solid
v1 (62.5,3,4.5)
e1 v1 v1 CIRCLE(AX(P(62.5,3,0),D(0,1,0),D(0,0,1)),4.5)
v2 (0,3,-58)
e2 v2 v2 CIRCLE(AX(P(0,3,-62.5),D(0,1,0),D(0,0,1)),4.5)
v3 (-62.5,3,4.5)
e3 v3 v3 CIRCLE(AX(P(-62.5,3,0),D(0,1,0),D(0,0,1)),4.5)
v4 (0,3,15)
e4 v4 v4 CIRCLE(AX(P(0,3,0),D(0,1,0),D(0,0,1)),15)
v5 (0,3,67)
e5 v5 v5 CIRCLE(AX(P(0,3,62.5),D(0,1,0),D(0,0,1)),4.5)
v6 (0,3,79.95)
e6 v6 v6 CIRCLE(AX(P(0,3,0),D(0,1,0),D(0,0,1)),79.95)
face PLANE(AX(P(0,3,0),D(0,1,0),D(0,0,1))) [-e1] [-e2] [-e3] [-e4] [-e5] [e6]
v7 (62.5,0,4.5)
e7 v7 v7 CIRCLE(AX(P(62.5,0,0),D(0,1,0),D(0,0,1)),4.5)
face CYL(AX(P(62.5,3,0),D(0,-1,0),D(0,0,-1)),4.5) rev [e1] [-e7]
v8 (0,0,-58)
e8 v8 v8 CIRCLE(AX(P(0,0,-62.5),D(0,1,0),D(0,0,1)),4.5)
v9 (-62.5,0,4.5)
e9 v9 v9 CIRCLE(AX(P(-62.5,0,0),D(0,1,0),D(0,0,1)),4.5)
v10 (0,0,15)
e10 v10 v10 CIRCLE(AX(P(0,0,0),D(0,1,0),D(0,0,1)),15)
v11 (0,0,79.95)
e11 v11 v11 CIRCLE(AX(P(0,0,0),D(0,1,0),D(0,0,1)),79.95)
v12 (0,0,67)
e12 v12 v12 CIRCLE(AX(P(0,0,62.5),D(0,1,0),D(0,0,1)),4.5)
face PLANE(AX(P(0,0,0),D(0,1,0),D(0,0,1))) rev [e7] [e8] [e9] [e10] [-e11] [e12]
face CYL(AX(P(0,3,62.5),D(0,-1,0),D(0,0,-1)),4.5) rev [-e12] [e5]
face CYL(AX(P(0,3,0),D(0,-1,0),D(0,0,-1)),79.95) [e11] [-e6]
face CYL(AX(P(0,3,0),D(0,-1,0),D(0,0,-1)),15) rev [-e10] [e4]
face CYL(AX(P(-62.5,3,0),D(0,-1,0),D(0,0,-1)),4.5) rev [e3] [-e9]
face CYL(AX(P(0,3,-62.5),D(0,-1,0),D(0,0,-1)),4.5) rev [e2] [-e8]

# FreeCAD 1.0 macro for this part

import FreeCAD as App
import Part
import Sketcher
from FreeCAD import Vector
Q = App.Units.Quantity

doc = App.newDocument("Part")
body = doc.addObject("PartDesign::Body", "Body")

# Sketch on XZ plane
sketch1 = doc.addObject("Sketcher::SketchObject", "Sketch")
body.addObject(sketch1)
sketch1.AttachmentSupport = (doc.XZ_Plane, [""])
sketch1.MapMode = "FlatFace"
sketch1.addGeometry(Part.Circle(Vector(0, 0, 0), Vector(0, 0, 1), 80), False)
sketch1.addGeometry(Part.Circle(Vector(0, -62.5, 0), Vector(0, 0, 1), 4.5), False)
sketch1.addGeometry(Part.Circle(Vector(-62.5, 0, 0), Vector(0, 0, 1), 4.5), False)
sketch1.addGeometry(Part.Circle(Vector(0, 0, 0), Vector(0, 0, 1), 15), False)
sketch1.addGeometry(Part.Circle(Vector(0, 62.5, 0), Vector(0, 0, 1), 4.5), False)
sketch1.addGeometry(Part.Circle(Vector(62.5, 0, 0), Vector(0, 0, 1), 4.5), False)
sketch1.addConstraint(Sketcher.Constraint("Coincident", 0, 3, -1, 1))
sketch1.addConstraint(Sketcher.Constraint("Coincident", 3, 3, -1, 1))
sketch1.addConstraint(Sketcher.Constraint("Equal", 1, 2))
sketch1.addConstraint(Sketcher.Constraint("Equal", 2, 4))
sketch1.addConstraint(Sketcher.Constraint("Equal", 4, 5))
sketch1.addConstraint(Sketcher.Constraint("Symmetric", 1, 3, 4, 3, -1, 1))
sketch1.addConstraint(Sketcher.Constraint("Symmetric", 2, 3, 5, 3, -1, 1))
sketch1.addConstraint(Sketcher.Constraint("PointOnObject", 1, 3, -2))
sketch1.addConstraint(Sketcher.Constraint("PointOnObject", 2, 3, -1))
sketch1.addConstraint(Sketcher.Constraint("Diameter", 1, Q("9 mm")))
sketch1.addConstraint(Sketcher.Constraint("Diameter", 3, Q("30 mm")))
sketch1.addConstraint(Sketcher.Constraint("Diameter", 0, Q("159.9 mm")))
sketch1.addConstraint(Sketcher.Constraint("DistanceY", 1, 3, 4, 3, Q("125 mm")))
sketch1.addConstraint(Sketcher.Constraint("DistanceX", 2, 3, 5, 3, Q("125 mm")))
pad1 = doc.addObject("PartDesign::Pad", "Pad")
body.addObject(pad1)
pad1.Profile = sketch1
pad1.Length = 3
pad1.Reversed = True

doc.recompute()
